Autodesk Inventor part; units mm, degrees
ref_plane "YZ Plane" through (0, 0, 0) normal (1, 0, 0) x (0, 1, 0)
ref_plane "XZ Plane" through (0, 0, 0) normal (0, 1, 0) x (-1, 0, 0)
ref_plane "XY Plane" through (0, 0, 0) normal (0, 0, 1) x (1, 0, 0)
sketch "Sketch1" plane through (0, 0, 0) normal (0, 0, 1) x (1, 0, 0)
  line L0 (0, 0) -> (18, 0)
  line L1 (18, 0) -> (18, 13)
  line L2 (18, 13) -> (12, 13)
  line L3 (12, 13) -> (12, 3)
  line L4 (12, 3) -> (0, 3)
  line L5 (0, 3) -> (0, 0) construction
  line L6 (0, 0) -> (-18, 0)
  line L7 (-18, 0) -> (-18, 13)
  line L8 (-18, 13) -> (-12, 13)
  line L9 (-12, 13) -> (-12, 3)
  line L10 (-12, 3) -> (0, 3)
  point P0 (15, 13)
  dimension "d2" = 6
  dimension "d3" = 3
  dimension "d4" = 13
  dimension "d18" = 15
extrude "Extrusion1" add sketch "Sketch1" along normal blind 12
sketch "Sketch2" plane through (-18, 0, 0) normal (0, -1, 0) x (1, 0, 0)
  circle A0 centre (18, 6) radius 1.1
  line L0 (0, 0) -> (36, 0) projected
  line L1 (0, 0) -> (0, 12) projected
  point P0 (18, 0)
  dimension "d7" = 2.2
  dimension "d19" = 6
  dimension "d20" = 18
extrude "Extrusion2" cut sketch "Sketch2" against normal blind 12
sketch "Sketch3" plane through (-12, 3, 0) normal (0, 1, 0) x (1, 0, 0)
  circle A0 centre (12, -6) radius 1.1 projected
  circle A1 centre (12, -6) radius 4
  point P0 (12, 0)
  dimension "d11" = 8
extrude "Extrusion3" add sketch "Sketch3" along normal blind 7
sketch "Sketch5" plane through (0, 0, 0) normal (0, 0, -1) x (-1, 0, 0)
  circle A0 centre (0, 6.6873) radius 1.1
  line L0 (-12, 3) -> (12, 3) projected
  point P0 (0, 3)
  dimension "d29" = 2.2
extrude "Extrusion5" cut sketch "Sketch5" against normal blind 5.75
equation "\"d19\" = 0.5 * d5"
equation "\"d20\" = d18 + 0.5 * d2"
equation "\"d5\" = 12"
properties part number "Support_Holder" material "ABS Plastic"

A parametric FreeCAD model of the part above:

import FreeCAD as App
import Part
import Sketcher


def add_polygon(sketch, points):
    """Adds a closed chain of lines whose ends are joined by coincident constraints."""
    first, n = sketch.GeometryCount, len(points)
    for a, b in zip(points, points[1:] + points[:1]):
        sketch.addGeometry(Part.LineSegment(App.Vector(*a, 0), App.Vector(*b, 0)), False)
    for i in range(n):
        sketch.addConstraint(Sketcher.Constraint("Coincident", first + i, 2, first + (i + 1) % n, 1))

doc = App.newDocument("Part")
params = doc.addObject("Spreadsheet::Sheet", "Params")
for row, (alias, value) in enumerate([
    ("sketch1_width", "6 mm"),
    ("sketch1_height", "13 mm"),
    ("sketch1_width2", "36 mm"),
    ("pad1_length", "12 mm"),
    ("sketch2_diameter", "2.2 mm"),
    ("pocket1_length", "12 mm"),
    ("sketch3_diameter", "8 mm"),
    ("sketch3_diameter2", "2.2 mm"),
    ("pad2_length", "7 mm"),
    ("sketch4_diameter", "2.2 mm"),
    ("pocket2_length", "5.75 mm"),
], start=1):
    params.set(f"A{row}", alias)
    params.set(f"B{row}", "=" + value)
    params.setAlias(f"B{row}", alias)

body = doc.addObject("PartDesign::Body", "Body")

sketch1 = body.newObject("Sketcher::SketchObject", "Sketch")
sketch1.AttachmentSupport = (doc.getObject("XY_Plane"), [""])
sketch1.MapMode = "FlatFace"
add_polygon(sketch1, [(-18, 0), (18, 0), (18, 13), (12, 13), (12, 3), (-12, 3), (-12, 13), (-18, 13)])
sketch1.addConstraint([
    Sketcher.Constraint("Horizontal", 0),
    Sketcher.Constraint("Vertical", 1),
    Sketcher.Constraint("Horizontal", 2),
    Sketcher.Constraint("Vertical", 3),
    Sketcher.Constraint("Horizontal", 4),
    Sketcher.Constraint("Vertical", 5),
    Sketcher.Constraint("Horizontal", 6),
    Sketcher.Constraint("Vertical", 7),
    Sketcher.Constraint("Symmetric", 0, 2, 7, 2, -1, 1),
    Sketcher.Constraint("Symmetric", 2, 2, 5, 2, -2),
    Sketcher.Constraint("DistanceX", 2, 2, 2, 1, 6.0),
    Sketcher.Constraint("DistanceY", 1, 1, 1, 2, 13.0),
    Sketcher.Constraint("DistanceY", -1, 1, 3, 2, 3.0),
    Sketcher.Constraint("DistanceX", 0, 1, 0, 2, 36.0),
])
sketch1.setExpression("Constraints[18]", "Params.sketch1_width")
sketch1.setExpression("Constraints[19]", "Params.sketch1_height")
sketch1.setExpression("Constraints[21]", "Params.sketch1_width2")
pad1 = body.newObject("PartDesign::Pad", "Pad")
pad1.Profile = sketch1
pad1.setExpression("Length", "Params.pad1_length")

sketch2 = body.newObject("Sketcher::SketchObject", "Sketch001")
sketch2.AttachmentSupport = (doc.getObject("XZ_Plane"), [""])
sketch2.MapMode = "FlatFace"
sketch2.addGeometry(Part.Circle(App.Vector(0, 6, 0), App.Vector(0, 0, 1), 1.1), False)
sketch2.addConstraint([
    Sketcher.Constraint("PointOnObject", 0, 3, -2),
    Sketcher.Constraint("Diameter", 0, 2.2),
    Sketcher.Constraint("DistanceY", -1, 1, 0, 3, 6.0),
])
sketch2.setExpression("Constraints[1]", "Params.sketch2_diameter")
pocket1 = body.newObject("PartDesign::Pocket", "Pocket")
pocket1.Profile = sketch2
pocket1.setExpression("Length", "Params.pocket1_length")

sketch3 = body.newObject("Sketcher::SketchObject", "Sketch002")
sketch3.AttachmentSupport = (doc.getObject("XZ_Plane"), [""])
sketch3.MapMode = "FlatFace"
sketch3.AttachmentOffset = App.Placement(App.Vector(0, 0, -3), App.Rotation())
sketch3.addGeometry([
    Part.Circle(App.Vector(0, 6, 0), App.Vector(0, 0, 1), 4),
    Part.Circle(App.Vector(0, 6, 0), App.Vector(0, 0, 1), 1.1),
], False)
sketch3.addConstraint([
    Sketcher.Constraint("Coincident", 1, 3, 0, 3),
    Sketcher.Constraint("PointOnObject", 0, 3, -2),
    Sketcher.Constraint("Diameter", 0, 8.0),
    Sketcher.Constraint("Diameter", 1, 2.2),
    Sketcher.Constraint("DistanceY", -1, 1, 0, 3, 6.0),
])
sketch3.setExpression("Constraints[2]", "Params.sketch3_diameter")
sketch3.setExpression("Constraints[3]", "Params.sketch3_diameter2")
pad2 = body.newObject("PartDesign::Pad", "Pad001")
pad2.Profile = sketch3
pad2.setExpression("Length", "Params.pad2_length")
pad2.Reversed = True

sketch4 = body.newObject("Sketcher::SketchObject", "Sketch003")
sketch4.AttachmentSupport = (doc.getObject("XY_Plane"), [""])
sketch4.MapMode = "FlatFace"
sketch4.addGeometry(Part.Circle(App.Vector(0, 6.7, 0), App.Vector(0, 0, 1), 1.1), False)
sketch4.addConstraint([
    Sketcher.Constraint("PointOnObject", 0, 3, -2),
    Sketcher.Constraint("Diameter", 0, 2.2),
    Sketcher.Constraint("DistanceY", -1, 1, 0, 3, 6.6873),
])
sketch4.setExpression("Constraints[1]", "Params.sketch4_diameter")
pocket2 = body.newObject("PartDesign::Pocket", "Pocket001")
pocket2.Profile = sketch4
pocket2.setExpression("Length", "Params.pocket2_length")
pocket2.Reversed = True

doc.recompute()
